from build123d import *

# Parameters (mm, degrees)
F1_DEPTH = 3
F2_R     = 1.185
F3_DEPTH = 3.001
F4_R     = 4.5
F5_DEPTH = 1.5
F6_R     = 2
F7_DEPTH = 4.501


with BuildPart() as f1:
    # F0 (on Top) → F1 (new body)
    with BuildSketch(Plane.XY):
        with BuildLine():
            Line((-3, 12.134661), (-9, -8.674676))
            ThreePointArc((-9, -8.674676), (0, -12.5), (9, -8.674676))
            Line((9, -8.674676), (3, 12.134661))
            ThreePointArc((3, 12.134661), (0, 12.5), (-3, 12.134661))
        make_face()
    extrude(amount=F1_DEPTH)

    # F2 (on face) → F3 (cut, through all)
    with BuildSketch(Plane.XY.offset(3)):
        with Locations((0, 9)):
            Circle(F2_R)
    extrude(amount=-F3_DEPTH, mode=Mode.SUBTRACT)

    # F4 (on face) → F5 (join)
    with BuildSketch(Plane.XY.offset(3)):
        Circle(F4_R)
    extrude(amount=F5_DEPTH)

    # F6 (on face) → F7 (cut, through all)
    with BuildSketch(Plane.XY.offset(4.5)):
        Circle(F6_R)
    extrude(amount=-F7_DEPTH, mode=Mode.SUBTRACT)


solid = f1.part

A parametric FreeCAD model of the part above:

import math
import FreeCAD as App
import Part
import Sketcher
Q = App.Units.Quantity

doc = App.newDocument("Part")
params = doc.addObject("Spreadsheet::Sheet", "Params")
for row, (alias, value) in enumerate([
    ("sketch1_radius", "12.5 mm"),
    ("pad1_length", "3 mm"),
    ("sketch2_diameter", "2.37 mm"),
    ("sketch3_diameter", "9 mm"),
    ("pad2_length", "1.5 mm"),
    ("sketch4_diameter", "4 mm"),
], start=1):
    params.set(f"A{row}", alias)
    params.set(f"B{row}", "=" + value)
    params.setAlias(f"B{row}", alias)

body = doc.addObject("PartDesign::Body", "Body")

# Sketch on XY plane
sketch1 = doc.addObject("Sketcher::SketchObject", "Sketch")
body.addObject(sketch1)
sketch1.AttachmentSupport = (doc.XY_Plane, [""])
sketch1.MapMode = "FlatFace"
sketch1.addGeometry(Part.LineSegment(App.Vector(-3, 12, 0), App.Vector(-9, -9, 0)), False)
sketch1.addGeometry(Part.ArcOfCircle(Part.Circle(App.Vector(0, 0, 0), App.Vector(0, 0, 1), 13), math.radians(-136), math.radians(-44)), False)
sketch1.addGeometry(Part.LineSegment(App.Vector(9, -9, 0), App.Vector(3, 12, 0)), False)
sketch1.addGeometry(Part.ArcOfCircle(Part.Circle(App.Vector(0, 0, 0), App.Vector(0, 0, 1), 12), math.radians(76), math.radians(104)), False)
sketch1.addConstraint(Sketcher.Constraint("Coincident", 0, 2, 1, 1))
sketch1.addConstraint(Sketcher.Constraint("Coincident", 1, 2, 2, 1))
sketch1.addConstraint(Sketcher.Constraint("Coincident", 2, 2, 3, 1))
sketch1.addConstraint(Sketcher.Constraint("Coincident", 3, 2, 0, 1))
sketch1.addConstraint(Sketcher.Constraint("Coincident", 1, 3, -1, 1))
sketch1.addConstraint(Sketcher.Constraint("Coincident", 3, 3, -1, 1))
sketch1.addConstraint(Sketcher.Constraint("Horizontal", 0, 2, 1, 2))
sketch1.addConstraint(Sketcher.Constraint("Horizontal", 2, 2, 3, 2))
sketch1.addConstraint(Sketcher.Constraint("Radius", 1, Q("12.5 mm")))
sketch1.addConstraint(Sketcher.Constraint("DistanceX", 0, 2, -1, 1, Q("9 mm")))
sketch1.addConstraint(Sketcher.Constraint("DistanceX", -1, 1, 2, 2, Q("3 mm")))
sketch1.addConstraint(Sketcher.Constraint("Radius", 3, Q("12.499997 mm")))
sketch1.setExpression("Constraints[8]", "Params.sketch1_radius")
pad1 = doc.addObject("PartDesign::Pad", "Pad")
body.addObject(pad1)
pad1.Profile = sketch1
pad1.setExpression("Length", "Params.pad1_length")

# Sketch on XY plane
sketch2 = doc.addObject("Sketcher::SketchObject", "Sketch001")
body.addObject(sketch2)
sketch2.AttachmentSupport = (doc.XY_Plane, [""])
sketch2.MapMode = "FlatFace"
sketch2.AttachmentOffset = App.Placement(App.Vector(0, 0, 3), App.Rotation())
sketch2.addGeometry(Part.Circle(App.Vector(0, 9, 0), App.Vector(0, 0, 1), 1.2), False)
sketch2.addConstraint(Sketcher.Constraint("PointOnObject", 0, 3, -2))
sketch2.addConstraint(Sketcher.Constraint("Diameter", 0, Q("2.37 mm")))
sketch2.addConstraint(Sketcher.Constraint("DistanceY", -1, 1, 0, 3, Q("9 mm")))
sketch2.setExpression("Constraints[1]", "Params.sketch2_diameter")
pocket1 = doc.addObject("PartDesign::Pocket", "Pocket")
body.addObject(pocket1)
pocket1.Profile = sketch2
pocket1.Type = "ThroughAll"

# Sketch on XY plane
sketch3 = doc.addObject("Sketcher::SketchObject", "Sketch002")
body.addObject(sketch3)
sketch3.AttachmentSupport = (doc.XY_Plane, [""])
sketch3.MapMode = "FlatFace"
sketch3.AttachmentOffset = App.Placement(App.Vector(0, 0, 3), App.Rotation())
sketch3.addGeometry(Part.Circle(App.Vector(0, 0, 0), App.Vector(0, 0, 1), 4.5), False)
sketch3.addConstraint(Sketcher.Constraint("Coincident", 0, 3, -1, 1))
sketch3.addConstraint(Sketcher.Constraint("Diameter", 0, Q("9 mm")))
sketch3.setExpression("Constraints[1]", "Params.sketch3_diameter")
pad2 = doc.addObject("PartDesign::Pad", "Pad001")
body.addObject(pad2)
pad2.Profile = sketch3
pad2.setExpression("Length", "Params.pad2_length")

# Sketch on XY plane
sketch4 = doc.addObject("Sketcher::SketchObject", "Sketch003")
body.addObject(sketch4)
sketch4.AttachmentSupport = (doc.XY_Plane, [""])
sketch4.MapMode = "FlatFace"
sketch4.AttachmentOffset = App.Placement(App.Vector(0, 0, 4.5), App.Rotation())
sketch4.addGeometry(Part.Circle(App.Vector(0, 0, 0), App.Vector(0, 0, 1), 2), False)
sketch4.addConstraint(Sketcher.Constraint("Coincident", 0, 3, -1, 1))
sketch4.addConstraint(Sketcher.Constraint("Diameter", 0, Q("4 mm")))
sketch4.setExpression("Constraints[1]", "Params.sketch4_diameter")
pocket2 = doc.addObject("PartDesign::Pocket", "Pocket001")
body.addObject(pocket2)
pocket2.Profile = sketch4
pocket2.Type = "ThroughAll"

doc.recompute()
